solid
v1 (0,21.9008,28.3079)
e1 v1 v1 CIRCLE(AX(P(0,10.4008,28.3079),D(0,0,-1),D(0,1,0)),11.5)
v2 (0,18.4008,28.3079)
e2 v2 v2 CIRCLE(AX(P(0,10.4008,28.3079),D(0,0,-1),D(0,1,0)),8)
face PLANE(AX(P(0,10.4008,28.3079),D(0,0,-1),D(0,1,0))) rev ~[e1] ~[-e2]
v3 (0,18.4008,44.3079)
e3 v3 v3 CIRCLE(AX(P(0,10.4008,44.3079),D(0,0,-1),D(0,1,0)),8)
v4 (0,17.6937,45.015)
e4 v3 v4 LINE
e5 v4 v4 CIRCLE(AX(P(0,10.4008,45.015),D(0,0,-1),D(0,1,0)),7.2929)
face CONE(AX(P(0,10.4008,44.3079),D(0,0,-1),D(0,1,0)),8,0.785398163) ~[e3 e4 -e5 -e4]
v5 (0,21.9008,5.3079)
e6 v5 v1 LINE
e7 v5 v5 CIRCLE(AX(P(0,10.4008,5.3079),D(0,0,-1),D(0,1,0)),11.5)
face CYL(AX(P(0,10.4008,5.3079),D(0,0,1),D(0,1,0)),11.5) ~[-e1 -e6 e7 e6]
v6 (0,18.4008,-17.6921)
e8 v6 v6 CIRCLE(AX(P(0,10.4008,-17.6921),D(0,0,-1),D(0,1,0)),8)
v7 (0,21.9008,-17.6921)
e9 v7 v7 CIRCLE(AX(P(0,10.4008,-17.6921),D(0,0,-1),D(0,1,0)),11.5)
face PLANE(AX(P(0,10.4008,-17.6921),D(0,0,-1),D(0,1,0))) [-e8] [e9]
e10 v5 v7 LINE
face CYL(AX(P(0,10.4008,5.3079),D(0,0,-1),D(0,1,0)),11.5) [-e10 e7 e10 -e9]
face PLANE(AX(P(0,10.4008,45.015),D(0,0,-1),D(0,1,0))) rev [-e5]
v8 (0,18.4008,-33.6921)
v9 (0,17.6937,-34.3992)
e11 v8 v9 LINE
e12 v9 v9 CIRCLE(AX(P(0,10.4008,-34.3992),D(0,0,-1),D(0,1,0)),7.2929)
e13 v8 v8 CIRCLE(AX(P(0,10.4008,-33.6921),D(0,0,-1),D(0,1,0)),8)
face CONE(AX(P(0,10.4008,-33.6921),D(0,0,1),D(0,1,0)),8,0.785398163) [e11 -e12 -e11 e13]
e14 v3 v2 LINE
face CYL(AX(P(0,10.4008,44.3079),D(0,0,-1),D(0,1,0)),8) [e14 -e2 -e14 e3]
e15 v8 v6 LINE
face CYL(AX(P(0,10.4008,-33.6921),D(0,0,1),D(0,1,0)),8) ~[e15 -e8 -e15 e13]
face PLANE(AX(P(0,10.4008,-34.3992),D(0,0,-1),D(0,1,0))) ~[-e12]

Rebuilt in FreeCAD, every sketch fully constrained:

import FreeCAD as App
import Part
import Sketcher

doc = App.newDocument("Part")
body = doc.addObject("PartDesign::Body", "Body")

# Sketch on YZ plane
sketch1 = body.newObject("Sketcher::SketchObject", "Sketch")
sketch1.AttachmentSupport = (doc.getObject("YZ_Plane"), [""])
sketch1.MapMode = "FlatFace"
sketch1.addGeometry([
    Part.LineSegment(App.Vector(21.9, -17.7, 0), App.Vector(21.9, 28.3, 0)),  # 0
    Part.LineSegment(App.Vector(21.9, 28.3, 0), App.Vector(18.4, 28.3, 0)),  # 1
    Part.LineSegment(App.Vector(18.4, 28.3, 0), App.Vector(18.4, 44.3, 0)),  # 2
    Part.LineSegment(App.Vector(18.4, 44.3, 0), App.Vector(17.7, 45, 0)),  # 3
    Part.LineSegment(App.Vector(17.7, 45, 0), App.Vector(10.4, 45, 0)),  # 4
    Part.LineSegment(App.Vector(10.4, 45, 0), App.Vector(10.4, -34.4, 0)),  # 5
    Part.LineSegment(App.Vector(10.4, -34.4, 0), App.Vector(17.7, -34.4, 0)),  # 6
    Part.LineSegment(App.Vector(17.7, -34.4, 0), App.Vector(18.4, -33.7, 0)),  # 7
    Part.LineSegment(App.Vector(18.4, -33.7, 0), App.Vector(18.4, -17.7, 0)),  # 8
    Part.LineSegment(App.Vector(18.4, -17.7, 0), App.Vector(21.9, -17.7, 0)),  # 9
], False)
sketch1.addGeometry(Part.LineSegment(App.Vector(10.4, 45, 0), App.Vector(10.4, -34.4, 0)), True)  # axis
sketch1.addConstraint([
    Sketcher.Constraint("Coincident", 0, 2, 1, 1),
    Sketcher.Constraint("Coincident", 1, 2, 2, 1),
    Sketcher.Constraint("Coincident", 2, 2, 3, 1),
    Sketcher.Constraint("Coincident", 3, 2, 4, 1),
    Sketcher.Constraint("Coincident", 4, 2, 5, 1),
    Sketcher.Constraint("Coincident", 5, 2, 6, 1),
    Sketcher.Constraint("Coincident", 6, 2, 7, 1),
    Sketcher.Constraint("Coincident", 7, 2, 8, 1),
    Sketcher.Constraint("Coincident", 8, 2, 9, 1),
    Sketcher.Constraint("Coincident", 9, 2, 0, 1),
    Sketcher.Constraint("Vertical", 0),
    Sketcher.Constraint("Horizontal", 1),
    Sketcher.Constraint("Vertical", 2),
    Sketcher.Constraint("Horizontal", 4),
    Sketcher.Constraint("Vertical", 5),
    Sketcher.Constraint("Horizontal", 6),
    Sketcher.Constraint("Vertical", 8),
    Sketcher.Constraint("Horizontal", 9),
    Sketcher.Constraint("Vertical", 10),
    Sketcher.Constraint("Coincident", 10, 1, 4, 2),
    Sketcher.Constraint("Perpendicular", 3, 7),
    Sketcher.Constraint("Horizontal", 6, 2, 10, 2),
    Sketcher.Constraint("Vertical", 3, 2, 6, 2),
    Sketcher.Constraint("Vertical", 2, 2, 7, 2),
    Sketcher.Constraint("Equal", 2, 8),
    Sketcher.Constraint("Equal", 3, 7),
    Sketcher.Constraint("DistanceY", 2, 1, 2, 2, 16.0),
    Sketcher.Constraint("Distance", 3, 1.0),
    Sketcher.Constraint("DistanceX", 1, 2, 1, 1, 3.5),
    Sketcher.Constraint("DistanceX", 4, 2, 0, 2, 11.5),
    Sketcher.Constraint("DistanceY", 0, 1, 0, 2, 46.0),
    Sketcher.Constraint("DistanceY", -1, 1, 0, 2, 28.308),
    Sketcher.Constraint("DistanceX", -1, 1, 0, 2, 21.9008),
])
revolution = body.newObject("PartDesign::Revolution", "Revolution")
revolution.Profile = sketch1
revolution.ReferenceAxis = (sketch1, ["Axis0"])
revolution.Angle = 360

doc.recompute()
